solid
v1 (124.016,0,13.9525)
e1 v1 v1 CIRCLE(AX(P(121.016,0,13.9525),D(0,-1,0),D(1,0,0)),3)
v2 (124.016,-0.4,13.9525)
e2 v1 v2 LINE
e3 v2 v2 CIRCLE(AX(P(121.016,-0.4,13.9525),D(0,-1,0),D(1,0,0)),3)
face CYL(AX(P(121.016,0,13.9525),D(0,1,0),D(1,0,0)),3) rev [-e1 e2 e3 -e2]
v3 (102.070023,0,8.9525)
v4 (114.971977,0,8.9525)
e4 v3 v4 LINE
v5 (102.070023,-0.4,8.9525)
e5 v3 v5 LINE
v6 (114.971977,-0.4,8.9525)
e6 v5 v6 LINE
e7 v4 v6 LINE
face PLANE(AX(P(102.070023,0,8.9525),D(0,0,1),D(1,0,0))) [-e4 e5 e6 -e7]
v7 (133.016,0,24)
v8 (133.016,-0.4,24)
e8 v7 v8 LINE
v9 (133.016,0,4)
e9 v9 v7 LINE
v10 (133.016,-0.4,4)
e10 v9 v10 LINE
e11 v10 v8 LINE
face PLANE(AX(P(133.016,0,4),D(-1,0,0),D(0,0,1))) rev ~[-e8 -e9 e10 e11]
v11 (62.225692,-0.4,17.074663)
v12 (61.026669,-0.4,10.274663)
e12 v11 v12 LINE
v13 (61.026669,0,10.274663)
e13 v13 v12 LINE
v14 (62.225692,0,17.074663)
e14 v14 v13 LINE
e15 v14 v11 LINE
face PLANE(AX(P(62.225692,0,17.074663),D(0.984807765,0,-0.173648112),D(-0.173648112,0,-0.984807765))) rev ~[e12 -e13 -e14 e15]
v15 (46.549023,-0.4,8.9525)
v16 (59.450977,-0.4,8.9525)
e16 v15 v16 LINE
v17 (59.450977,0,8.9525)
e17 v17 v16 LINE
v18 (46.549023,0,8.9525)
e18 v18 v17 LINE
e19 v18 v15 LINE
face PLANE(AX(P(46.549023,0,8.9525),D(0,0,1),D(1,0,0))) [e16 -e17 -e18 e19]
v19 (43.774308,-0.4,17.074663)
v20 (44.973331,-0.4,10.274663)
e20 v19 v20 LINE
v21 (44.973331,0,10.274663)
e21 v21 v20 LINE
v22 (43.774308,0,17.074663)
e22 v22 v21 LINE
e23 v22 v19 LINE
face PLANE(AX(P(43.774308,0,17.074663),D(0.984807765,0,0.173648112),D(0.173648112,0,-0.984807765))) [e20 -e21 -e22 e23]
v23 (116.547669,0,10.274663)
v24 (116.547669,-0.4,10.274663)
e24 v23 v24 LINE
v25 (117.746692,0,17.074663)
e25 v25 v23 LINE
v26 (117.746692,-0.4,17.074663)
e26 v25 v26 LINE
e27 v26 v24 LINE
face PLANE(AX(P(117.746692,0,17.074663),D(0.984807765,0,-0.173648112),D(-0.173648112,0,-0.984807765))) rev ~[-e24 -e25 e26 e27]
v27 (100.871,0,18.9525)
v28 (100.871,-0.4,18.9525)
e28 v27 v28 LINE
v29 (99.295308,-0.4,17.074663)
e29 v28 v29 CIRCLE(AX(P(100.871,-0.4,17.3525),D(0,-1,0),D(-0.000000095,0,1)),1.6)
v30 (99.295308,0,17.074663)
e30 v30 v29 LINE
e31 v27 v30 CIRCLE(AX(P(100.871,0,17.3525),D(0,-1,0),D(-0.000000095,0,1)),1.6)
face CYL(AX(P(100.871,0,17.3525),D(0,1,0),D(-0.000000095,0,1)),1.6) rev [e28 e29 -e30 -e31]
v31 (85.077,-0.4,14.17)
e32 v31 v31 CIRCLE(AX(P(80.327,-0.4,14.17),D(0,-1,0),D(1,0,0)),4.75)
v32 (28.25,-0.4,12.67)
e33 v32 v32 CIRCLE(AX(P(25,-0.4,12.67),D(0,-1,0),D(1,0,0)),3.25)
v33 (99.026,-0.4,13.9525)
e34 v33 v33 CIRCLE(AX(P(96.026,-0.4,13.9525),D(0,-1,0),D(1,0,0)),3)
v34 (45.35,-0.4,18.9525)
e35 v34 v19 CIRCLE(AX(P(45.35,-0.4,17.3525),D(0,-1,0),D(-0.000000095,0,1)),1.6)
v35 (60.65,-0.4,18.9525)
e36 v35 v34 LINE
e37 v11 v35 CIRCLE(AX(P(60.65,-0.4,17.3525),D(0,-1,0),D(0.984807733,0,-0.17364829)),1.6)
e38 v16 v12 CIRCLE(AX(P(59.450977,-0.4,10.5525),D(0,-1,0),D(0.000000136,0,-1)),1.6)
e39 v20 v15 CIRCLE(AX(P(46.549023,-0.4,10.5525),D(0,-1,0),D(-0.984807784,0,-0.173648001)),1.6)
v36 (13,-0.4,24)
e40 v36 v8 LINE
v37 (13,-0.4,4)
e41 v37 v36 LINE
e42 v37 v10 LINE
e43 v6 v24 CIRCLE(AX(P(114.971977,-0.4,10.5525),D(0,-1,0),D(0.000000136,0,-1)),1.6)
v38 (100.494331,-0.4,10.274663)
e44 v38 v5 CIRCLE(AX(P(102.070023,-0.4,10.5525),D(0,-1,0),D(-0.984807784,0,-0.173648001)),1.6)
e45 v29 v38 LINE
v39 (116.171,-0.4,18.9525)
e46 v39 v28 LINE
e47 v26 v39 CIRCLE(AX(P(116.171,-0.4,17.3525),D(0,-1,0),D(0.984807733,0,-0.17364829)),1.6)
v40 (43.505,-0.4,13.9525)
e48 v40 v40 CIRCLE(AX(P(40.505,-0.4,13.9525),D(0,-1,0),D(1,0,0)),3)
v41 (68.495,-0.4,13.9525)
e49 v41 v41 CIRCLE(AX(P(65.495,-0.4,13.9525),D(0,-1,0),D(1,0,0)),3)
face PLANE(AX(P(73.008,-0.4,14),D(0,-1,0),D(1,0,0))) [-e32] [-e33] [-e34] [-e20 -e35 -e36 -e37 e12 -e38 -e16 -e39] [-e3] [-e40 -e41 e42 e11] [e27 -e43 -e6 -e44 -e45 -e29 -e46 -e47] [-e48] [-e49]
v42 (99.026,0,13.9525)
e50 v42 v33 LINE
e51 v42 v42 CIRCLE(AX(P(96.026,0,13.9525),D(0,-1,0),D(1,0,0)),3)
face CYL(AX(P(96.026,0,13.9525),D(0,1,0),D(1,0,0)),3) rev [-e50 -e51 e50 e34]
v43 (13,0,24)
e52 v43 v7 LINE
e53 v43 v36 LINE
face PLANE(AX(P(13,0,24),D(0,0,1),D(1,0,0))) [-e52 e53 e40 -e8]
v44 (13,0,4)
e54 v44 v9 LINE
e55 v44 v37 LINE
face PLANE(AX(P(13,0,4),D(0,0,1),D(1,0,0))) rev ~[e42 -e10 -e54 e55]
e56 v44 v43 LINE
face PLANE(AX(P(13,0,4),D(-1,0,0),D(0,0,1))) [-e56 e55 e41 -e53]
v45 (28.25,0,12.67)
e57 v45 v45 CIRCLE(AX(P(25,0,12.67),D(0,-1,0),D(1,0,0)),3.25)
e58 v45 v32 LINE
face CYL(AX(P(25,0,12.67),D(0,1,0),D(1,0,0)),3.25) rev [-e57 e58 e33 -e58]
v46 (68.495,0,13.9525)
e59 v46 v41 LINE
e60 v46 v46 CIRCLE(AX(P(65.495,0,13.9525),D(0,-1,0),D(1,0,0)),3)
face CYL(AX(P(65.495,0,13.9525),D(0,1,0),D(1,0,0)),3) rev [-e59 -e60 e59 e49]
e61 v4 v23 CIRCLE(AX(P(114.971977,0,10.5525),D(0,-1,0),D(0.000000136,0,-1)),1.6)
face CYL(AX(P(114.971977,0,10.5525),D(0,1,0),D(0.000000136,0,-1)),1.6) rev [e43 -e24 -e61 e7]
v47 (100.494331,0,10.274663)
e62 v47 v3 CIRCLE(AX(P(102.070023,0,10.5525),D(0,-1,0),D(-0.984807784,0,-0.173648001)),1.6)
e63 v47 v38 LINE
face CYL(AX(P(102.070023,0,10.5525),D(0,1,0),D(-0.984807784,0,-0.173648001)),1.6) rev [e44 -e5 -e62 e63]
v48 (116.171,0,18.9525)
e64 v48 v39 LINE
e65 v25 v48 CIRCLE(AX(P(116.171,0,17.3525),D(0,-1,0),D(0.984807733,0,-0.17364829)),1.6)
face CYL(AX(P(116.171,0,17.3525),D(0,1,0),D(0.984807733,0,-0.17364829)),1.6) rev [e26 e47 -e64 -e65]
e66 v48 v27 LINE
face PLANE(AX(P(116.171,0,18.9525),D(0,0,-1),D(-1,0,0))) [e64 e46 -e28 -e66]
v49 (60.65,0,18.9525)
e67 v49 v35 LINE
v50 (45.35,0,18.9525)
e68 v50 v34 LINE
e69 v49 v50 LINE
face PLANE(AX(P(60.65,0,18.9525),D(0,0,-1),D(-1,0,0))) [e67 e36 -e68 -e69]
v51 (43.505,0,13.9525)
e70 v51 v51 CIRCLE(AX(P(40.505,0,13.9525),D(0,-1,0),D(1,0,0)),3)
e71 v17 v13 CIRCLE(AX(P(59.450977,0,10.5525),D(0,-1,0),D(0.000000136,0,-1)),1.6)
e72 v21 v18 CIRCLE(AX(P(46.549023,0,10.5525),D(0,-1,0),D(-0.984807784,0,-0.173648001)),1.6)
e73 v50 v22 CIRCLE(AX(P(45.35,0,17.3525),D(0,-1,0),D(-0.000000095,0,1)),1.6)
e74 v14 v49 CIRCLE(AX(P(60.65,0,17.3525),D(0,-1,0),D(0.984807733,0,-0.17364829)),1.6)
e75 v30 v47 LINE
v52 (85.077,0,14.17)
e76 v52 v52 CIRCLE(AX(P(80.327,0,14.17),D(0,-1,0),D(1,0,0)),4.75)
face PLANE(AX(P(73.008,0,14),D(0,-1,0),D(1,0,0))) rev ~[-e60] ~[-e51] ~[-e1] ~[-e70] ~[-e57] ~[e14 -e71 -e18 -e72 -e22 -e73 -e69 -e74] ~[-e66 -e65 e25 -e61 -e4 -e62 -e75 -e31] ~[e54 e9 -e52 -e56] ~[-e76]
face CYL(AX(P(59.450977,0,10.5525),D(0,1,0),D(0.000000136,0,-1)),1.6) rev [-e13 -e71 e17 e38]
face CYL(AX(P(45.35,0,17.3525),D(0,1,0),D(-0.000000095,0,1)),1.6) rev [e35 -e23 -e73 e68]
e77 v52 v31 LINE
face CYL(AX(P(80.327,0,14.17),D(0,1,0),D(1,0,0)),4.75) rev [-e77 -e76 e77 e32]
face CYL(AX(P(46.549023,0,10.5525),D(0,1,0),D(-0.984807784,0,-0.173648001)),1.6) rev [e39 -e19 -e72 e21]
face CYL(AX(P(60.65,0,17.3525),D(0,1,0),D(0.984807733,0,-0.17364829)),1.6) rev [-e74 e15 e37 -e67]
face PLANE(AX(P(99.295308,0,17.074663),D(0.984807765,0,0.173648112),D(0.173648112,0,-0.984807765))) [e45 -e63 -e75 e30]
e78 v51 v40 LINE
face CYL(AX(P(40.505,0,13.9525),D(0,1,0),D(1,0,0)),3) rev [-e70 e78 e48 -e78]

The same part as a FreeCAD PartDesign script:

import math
import FreeCAD as App
import Part
import Sketcher

V = App.Vector
Q = App.Units.Quantity

doc = App.newDocument("Part")
body = doc.addObject("PartDesign::Body", "Body")

# Sketch on XZ plane
sketch1 = body.newObject("Sketcher::SketchObject", "Sketch")
sketch1.AttachmentSupport = (doc.getObject("XZ_Plane"), [""])
sketch1.MapMode = "FlatFace"
sketch1.addGeometry([
    Part.LineSegment(V(13, 24, 0), V(13, 4, 0)),  # 0
    Part.LineSegment(V(13, 4, 0), V(133.016, 4, 0)),  # 1
    Part.LineSegment(V(133.016, 4, 0), V(133.016, 24, 0)),  # 2
    Part.LineSegment(V(133.016, 24, 0), V(13, 24, 0)),  # 3
    Part.Circle(V(25, 12.67, 0), V(0, 0, 1), 3.25),  # 4
    Part.Circle(V(40.505, 13.9525, 0), V(0, 0, 1), 3),  # 5
    Part.LineSegment(V(59.450977, 8.9525, 0), V(46.549023, 8.9525, 0)),  # 6
    Part.ArcOfCircle(Part.Circle(V(46.549023, 10.5525, 0), V(0, 0, 1), 1.6), math.radians(-170.00001), math.radians(-90.000008)),  # 7
    Part.LineSegment(V(44.973331, 10.274663, 0), V(43.774308, 17.074663, 0)),  # 8
    Part.ArcOfCircle(Part.Circle(V(45.35, 17.3525, 0), V(0, 0, 1), 1.6), math.radians(90.000005), math.radians(190.000007)),  # 9
    Part.LineSegment(V(45.35, 18.9525, 0), V(60.65, 18.9525, 0)),  # 10
    Part.ArcOfCircle(Part.Circle(V(60.65, 17.3525, 0), V(0, 0, 1), 1.6), math.radians(-10.000007), math.radians(89.999995)),  # 11
    Part.LineSegment(V(62.225692, 17.074663, 0), V(61.026669, 10.274663, 0)),  # 12
    Part.ArcOfCircle(Part.Circle(V(59.450977, 10.5525, 0), V(0, 0, 1), 1.6), math.radians(-89.999992), math.radians(-9.99999)),  # 13
    Part.Circle(V(65.495, 13.9525, 0), V(0, 0, 1), 3),  # 14
    Part.Circle(V(80.327, 14.17, 0), V(0, 0, 1), 4.75),  # 15
    Part.Circle(V(96.026, 13.9525, 0), V(0, 0, 1), 3),  # 16
    Part.LineSegment(V(114.971977, 8.9525, 0), V(102.070023, 8.9525, 0)),  # 17
    Part.ArcOfCircle(Part.Circle(V(102.070023, 10.5525, 0), V(0, 0, 1), 1.6), math.radians(-170.00001), math.radians(-90.000008)),  # 18
    Part.LineSegment(V(100.494331, 10.274663, 0), V(99.295308, 17.074663, 0)),  # 19
    Part.ArcOfCircle(Part.Circle(V(100.871, 17.3525, 0), V(0, 0, 1), 1.6), math.radians(90.000005), math.radians(190.000007)),  # 20
    Part.LineSegment(V(100.871, 18.9525, 0), V(116.171, 18.9525, 0)),  # 21
    Part.ArcOfCircle(Part.Circle(V(116.171, 17.3525, 0), V(0, 0, 1), 1.6), math.radians(-10.000007), math.radians(89.999995)),  # 22
    Part.LineSegment(V(117.746692, 17.074663, 0), V(116.547669, 10.274663, 0)),  # 23
    Part.ArcOfCircle(Part.Circle(V(114.971977, 10.5525, 0), V(0, 0, 1), 1.6), math.radians(-89.999992), math.radians(-9.99999)),  # 24
    Part.Circle(V(121.016, 13.9525, 0), V(0, 0, 1), 3),  # 25
], False)
sketch1.addConstraint([
    Sketcher.Constraint("Coincident", 0, 2, 1, 1),
    Sketcher.Constraint("Coincident", 1, 2, 2, 1),
    Sketcher.Constraint("Coincident", 2, 2, 3, 1),
    Sketcher.Constraint("Coincident", 3, 2, 0, 1),
    Sketcher.Constraint("Tangent", 6, 2, 7, 2),
    Sketcher.Constraint("Tangent", 7, 1, 8, 1),
    Sketcher.Constraint("Tangent", 8, 2, 9, 2),
    Sketcher.Constraint("Tangent", 9, 1, 10, 1),
    Sketcher.Constraint("Tangent", 10, 2, 11, 2),
    Sketcher.Constraint("Tangent", 11, 1, 12, 1),
    Sketcher.Constraint("Tangent", 12, 2, 13, 2),
    Sketcher.Constraint("Tangent", 13, 1, 6, 1),
    Sketcher.Constraint("Tangent", 17, 2, 18, 2),
    Sketcher.Constraint("Tangent", 18, 1, 19, 1),
    Sketcher.Constraint("Tangent", 19, 2, 20, 2),
    Sketcher.Constraint("Tangent", 20, 1, 21, 1),
    Sketcher.Constraint("Tangent", 21, 2, 22, 2),
    Sketcher.Constraint("Tangent", 22, 1, 23, 1),
    Sketcher.Constraint("Tangent", 23, 2, 24, 2),
    Sketcher.Constraint("Tangent", 24, 1, 17, 1),
    Sketcher.Constraint("Vertical", 0),
    Sketcher.Constraint("Horizontal", 1),
    Sketcher.Constraint("Vertical", 2),
    Sketcher.Constraint("Horizontal", 3),
    Sketcher.Constraint("Horizontal", 6),
    Sketcher.Constraint("Horizontal", 10),
    Sketcher.Constraint("Horizontal", 17),
    Sketcher.Constraint("Horizontal", 21),
    Sketcher.Constraint("Equal", 7, 9),
    Sketcher.Constraint("Equal", 9, 11),
    Sketcher.Constraint("Equal", 11, 13),
    Sketcher.Constraint("Equal", 5, 14),
    Sketcher.Constraint("Equal", 14, 16),
    Sketcher.Constraint("Equal", 13, 18),
    Sketcher.Constraint("Equal", 18, 20),
    Sketcher.Constraint("Equal", 20, 22),
    Sketcher.Constraint("Equal", 22, 24),
    Sketcher.Constraint("Equal", 16, 25),
    Sketcher.Constraint("Parallel", 8, 19),
    Sketcher.Constraint("Parallel", 12, 23),
    Sketcher.Constraint("Horizontal", 5, 3, 14, 3),
    Sketcher.Constraint("Horizontal", 14, 3, 16, 3),
    Sketcher.Constraint("Horizontal", 13, 3, 18, 3),
    Sketcher.Constraint("Horizontal", 11, 3, 20, 3),
    Sketcher.Constraint("Horizontal", 16, 3, 25, 3),
    Sketcher.Constraint("Horizontal", 8, 2, 11, 1),
    Sketcher.Constraint("Equal", 6, 17),
    Sketcher.Constraint("Diameter", 5, 6.0),
    Sketcher.Constraint("Diameter", 4, 6.5),
    Sketcher.Constraint("Diameter", 15, 9.5),
    Sketcher.Constraint("Radius", 7, 1.6),
    Sketcher.Constraint("DistanceY", 0, 2, 0, 1, 20.0),
    Sketcher.Constraint("Angle", 8, Q("99.999996 deg")),
    Sketcher.Constraint("DistanceX", 10, 1, 10, 2, 15.3),
    Sketcher.Constraint("DistanceX", -1, 1, 4, 3, 25.0),
    Sketcher.Constraint("DistanceX", -1, 1, 0, 2, 13.0),
    Sketcher.Constraint("DistanceY", -1, 1, 0, 2, 4.0),
    Sketcher.Constraint("DistanceX", 25, 3, 1, 2, 12.0),
    Sketcher.Constraint("DistanceY", 6, 2, 5, 3, 5.0),
    Sketcher.Constraint("DistanceY", 5, 3, 9, 1, 5.0),
    Sketcher.Constraint("DistanceX", 1, 1, 1, 2, 120.016),
    Sketcher.Constraint("DistanceY", -1, 1, 4, 3, 12.67),
    Sketcher.Constraint("DistanceX", -1, 1, 9, 3, 45.35),
    Sketcher.Constraint("DistanceY", -1, 1, 15, 3, 14.17),
    Sketcher.Constraint("DistanceX", 5, 3, 14, 3, 24.99),
    Sketcher.Constraint("DistanceX", 16, 3, 25, 3, 24.99),
    Sketcher.Constraint("DistanceX", -1, 1, 5, 3, 40.505),
    Sketcher.Constraint("DistanceX", -1, 1, 15, 3, 80.327),
    Sketcher.Constraint("DistanceX", -1, 1, 20, 3, 100.871),
    Sketcher.Constraint("DistanceY", -1, 1, 5, 3, 13.9525),
])
pad1 = body.newObject("PartDesign::Pad", "Pad")
pad1.Profile = sketch1
pad1.Length = 0.4

doc.recompute()
